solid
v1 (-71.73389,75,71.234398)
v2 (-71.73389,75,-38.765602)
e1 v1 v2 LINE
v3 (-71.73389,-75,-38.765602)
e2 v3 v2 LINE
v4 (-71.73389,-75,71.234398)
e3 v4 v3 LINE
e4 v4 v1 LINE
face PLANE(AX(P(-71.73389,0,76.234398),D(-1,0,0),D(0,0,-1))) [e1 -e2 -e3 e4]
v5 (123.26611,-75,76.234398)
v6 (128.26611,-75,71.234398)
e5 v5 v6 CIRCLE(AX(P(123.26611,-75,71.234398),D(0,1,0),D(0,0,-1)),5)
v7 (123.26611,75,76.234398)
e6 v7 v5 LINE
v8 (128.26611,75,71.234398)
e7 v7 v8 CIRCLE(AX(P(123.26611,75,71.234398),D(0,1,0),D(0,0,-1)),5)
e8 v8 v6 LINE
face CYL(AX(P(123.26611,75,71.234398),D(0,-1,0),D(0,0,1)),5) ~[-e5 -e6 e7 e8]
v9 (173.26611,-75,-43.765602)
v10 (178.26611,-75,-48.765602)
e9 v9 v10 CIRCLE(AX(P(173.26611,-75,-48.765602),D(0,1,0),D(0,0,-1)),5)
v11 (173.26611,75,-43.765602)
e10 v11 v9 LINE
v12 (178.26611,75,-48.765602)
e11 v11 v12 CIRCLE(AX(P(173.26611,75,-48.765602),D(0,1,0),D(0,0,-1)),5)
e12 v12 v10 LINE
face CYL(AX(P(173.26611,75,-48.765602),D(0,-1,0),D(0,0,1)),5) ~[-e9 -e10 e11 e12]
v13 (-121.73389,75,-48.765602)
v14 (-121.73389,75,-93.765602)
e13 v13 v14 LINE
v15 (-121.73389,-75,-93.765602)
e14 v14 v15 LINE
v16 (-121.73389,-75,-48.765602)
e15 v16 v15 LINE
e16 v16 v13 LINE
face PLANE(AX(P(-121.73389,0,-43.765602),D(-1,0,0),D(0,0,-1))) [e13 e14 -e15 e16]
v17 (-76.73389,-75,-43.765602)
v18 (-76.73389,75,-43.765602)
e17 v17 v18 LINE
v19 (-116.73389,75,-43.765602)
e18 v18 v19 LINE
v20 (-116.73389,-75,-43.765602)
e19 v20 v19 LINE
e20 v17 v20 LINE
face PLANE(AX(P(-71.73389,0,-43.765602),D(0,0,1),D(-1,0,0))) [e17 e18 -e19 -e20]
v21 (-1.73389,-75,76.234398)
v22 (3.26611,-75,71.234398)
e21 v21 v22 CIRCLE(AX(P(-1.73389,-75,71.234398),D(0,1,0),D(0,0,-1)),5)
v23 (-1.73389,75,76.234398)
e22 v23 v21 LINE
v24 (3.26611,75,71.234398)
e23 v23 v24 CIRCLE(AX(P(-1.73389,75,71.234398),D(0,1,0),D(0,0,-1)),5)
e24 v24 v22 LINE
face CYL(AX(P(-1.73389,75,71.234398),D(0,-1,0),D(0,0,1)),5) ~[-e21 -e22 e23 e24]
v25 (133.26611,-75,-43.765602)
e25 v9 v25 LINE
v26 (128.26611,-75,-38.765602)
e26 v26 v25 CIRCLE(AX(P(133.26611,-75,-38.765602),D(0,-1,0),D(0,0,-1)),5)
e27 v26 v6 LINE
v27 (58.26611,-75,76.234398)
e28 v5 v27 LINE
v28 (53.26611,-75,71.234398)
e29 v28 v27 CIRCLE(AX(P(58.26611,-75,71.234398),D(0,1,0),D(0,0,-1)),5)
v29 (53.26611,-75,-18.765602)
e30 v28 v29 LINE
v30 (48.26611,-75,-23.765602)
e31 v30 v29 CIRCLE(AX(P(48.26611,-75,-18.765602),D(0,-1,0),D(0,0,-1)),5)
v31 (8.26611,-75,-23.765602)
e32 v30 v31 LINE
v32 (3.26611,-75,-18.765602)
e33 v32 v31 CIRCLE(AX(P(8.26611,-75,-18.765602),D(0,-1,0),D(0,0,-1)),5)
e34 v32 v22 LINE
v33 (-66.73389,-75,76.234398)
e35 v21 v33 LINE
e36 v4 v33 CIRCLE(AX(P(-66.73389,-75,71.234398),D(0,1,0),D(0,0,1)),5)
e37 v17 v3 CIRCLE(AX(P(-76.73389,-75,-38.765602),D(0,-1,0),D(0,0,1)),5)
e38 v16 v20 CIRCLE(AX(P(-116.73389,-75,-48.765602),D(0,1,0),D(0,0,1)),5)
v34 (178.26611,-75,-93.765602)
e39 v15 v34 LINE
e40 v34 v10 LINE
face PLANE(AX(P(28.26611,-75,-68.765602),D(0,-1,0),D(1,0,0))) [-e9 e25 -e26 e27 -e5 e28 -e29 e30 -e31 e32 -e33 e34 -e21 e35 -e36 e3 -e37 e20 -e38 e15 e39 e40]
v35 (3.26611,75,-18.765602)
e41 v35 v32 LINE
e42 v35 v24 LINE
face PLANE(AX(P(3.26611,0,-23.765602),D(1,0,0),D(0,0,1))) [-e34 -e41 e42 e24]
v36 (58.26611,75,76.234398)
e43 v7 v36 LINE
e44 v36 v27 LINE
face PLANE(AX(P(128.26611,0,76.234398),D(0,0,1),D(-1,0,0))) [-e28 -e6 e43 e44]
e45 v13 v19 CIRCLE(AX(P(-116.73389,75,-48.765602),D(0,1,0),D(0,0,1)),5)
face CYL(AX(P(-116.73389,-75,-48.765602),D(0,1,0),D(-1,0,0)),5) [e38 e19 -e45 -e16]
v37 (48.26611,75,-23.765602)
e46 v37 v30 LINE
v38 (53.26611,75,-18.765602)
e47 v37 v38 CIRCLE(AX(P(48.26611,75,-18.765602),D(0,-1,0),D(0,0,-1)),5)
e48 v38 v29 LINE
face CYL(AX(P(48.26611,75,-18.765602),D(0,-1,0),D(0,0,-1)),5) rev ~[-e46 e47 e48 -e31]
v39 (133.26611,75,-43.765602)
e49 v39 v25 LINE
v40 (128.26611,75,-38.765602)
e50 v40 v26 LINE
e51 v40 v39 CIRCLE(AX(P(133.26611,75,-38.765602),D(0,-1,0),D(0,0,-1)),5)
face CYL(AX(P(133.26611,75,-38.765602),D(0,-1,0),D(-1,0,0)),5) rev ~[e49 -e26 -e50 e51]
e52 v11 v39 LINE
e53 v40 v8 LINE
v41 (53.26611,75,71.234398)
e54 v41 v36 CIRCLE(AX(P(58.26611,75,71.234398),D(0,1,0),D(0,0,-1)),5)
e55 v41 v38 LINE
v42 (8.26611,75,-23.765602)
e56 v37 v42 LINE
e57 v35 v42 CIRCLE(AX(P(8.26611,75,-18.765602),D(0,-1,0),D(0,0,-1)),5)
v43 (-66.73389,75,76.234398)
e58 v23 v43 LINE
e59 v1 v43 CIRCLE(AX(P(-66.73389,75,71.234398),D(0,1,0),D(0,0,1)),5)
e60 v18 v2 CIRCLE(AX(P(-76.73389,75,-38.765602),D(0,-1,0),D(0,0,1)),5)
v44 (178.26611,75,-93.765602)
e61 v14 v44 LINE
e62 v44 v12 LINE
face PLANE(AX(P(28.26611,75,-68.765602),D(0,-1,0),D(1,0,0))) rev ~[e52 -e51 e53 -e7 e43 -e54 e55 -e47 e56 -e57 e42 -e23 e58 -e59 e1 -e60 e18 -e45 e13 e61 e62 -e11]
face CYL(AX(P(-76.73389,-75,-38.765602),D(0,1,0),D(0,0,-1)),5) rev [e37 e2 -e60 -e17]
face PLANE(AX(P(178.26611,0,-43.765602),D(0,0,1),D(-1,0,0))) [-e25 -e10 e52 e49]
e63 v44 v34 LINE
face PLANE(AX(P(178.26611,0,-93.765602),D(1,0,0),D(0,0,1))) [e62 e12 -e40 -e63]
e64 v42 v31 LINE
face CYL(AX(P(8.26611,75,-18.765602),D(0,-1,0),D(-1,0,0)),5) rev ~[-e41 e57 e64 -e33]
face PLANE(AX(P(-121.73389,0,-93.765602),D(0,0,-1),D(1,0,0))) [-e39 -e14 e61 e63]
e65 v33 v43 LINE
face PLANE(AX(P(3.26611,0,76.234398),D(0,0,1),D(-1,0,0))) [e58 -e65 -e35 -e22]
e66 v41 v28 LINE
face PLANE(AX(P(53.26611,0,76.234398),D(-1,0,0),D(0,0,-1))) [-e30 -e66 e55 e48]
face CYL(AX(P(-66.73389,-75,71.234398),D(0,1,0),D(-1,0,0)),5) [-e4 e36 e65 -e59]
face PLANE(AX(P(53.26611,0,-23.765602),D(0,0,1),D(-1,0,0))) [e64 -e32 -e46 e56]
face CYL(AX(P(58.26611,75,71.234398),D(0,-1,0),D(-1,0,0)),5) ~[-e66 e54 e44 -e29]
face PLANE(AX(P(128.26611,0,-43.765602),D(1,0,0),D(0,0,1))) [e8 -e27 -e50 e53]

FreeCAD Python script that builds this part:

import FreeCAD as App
import Part
import Sketcher


def edges_at(feature, points):
    """Names of the edges that pass closest to the given points."""
    edges = feature.Shape.Edges
    near = lambda p: min(range(len(edges)), key=lambda i: edges[i].distToShape(Part.Vertex(*p))[0])
    return sorted({f"Edge{near(p) + 1}" for p in points})


def add_polygon(sketch, points):
    """Adds a closed chain of lines whose ends are joined by coincident constraints."""
    first, n = sketch.GeometryCount, len(points)
    for a, b in zip(points, points[1:] + points[:1]):
        sketch.addGeometry(Part.LineSegment(App.Vector(*a, 0), App.Vector(*b, 0)), False)
    for i in range(n):
        sketch.addConstraint(Sketcher.Constraint("Coincident", first + i, 2, first + (i + 1) % n, 1))

doc = App.newDocument("Part")
body = doc.addObject("PartDesign::Body", "Body")

sketch1 = body.newObject("Sketcher::SketchObject", "Sketch")
sketch1.AttachmentSupport = (doc.getObject("XZ_Plane"), [""])
sketch1.MapMode = "FlatFace"
add_polygon(sketch1, [(-122, -44), (-122, -94), (178, -94), (178, -44), (128, -44), (128, 76), (53, 76), (53, -24), (3, -24), (3, 76), (-72, 76), (-72, -44)])
sketch1.addConstraint([
    Sketcher.Constraint("Vertical", 0),
    Sketcher.Constraint("Horizontal", 1),
    Sketcher.Constraint("Vertical", 2),
    Sketcher.Constraint("Horizontal", 3),
    Sketcher.Constraint("Vertical", 4),
    Sketcher.Constraint("Horizontal", 5),
    Sketcher.Constraint("Vertical", 6),
    Sketcher.Constraint("Horizontal", 7),
    Sketcher.Constraint("Vertical", 8),
    Sketcher.Constraint("Horizontal", 9),
    Sketcher.Constraint("Vertical", 10),
    Sketcher.Constraint("Horizontal", 11),
    Sketcher.Constraint("Horizontal", 5, 2, 8, 2),
    Sketcher.Constraint("Horizontal", 3, 2, 10, 2),
    Sketcher.Constraint("Equal", 3, 7),
    Sketcher.Constraint("Equal", 5, 9),
    Sketcher.Constraint("Equal", 7, 11),
    Sketcher.Constraint("Equal", 11, 0),
    Sketcher.Constraint("DistanceX", 1, 1, 1, 2, 300.0),
    Sketcher.Constraint("DistanceX", 3, 2, 3, 1, 50.0),
    Sketcher.Constraint("DistanceY", 4, 1, 4, 2, 120.0),
    Sketcher.Constraint("DistanceY", 6, 2, 6, 1, 100.0),
    Sketcher.Constraint("DistanceY", 0, 2, -1, 1, 93.765602),
    Sketcher.Constraint("DistanceX", 0, 2, -1, 1, 121.73389),
])
pad1 = body.newObject("PartDesign::Pad", "Pad")
pad1.Profile = sketch1
pad1.Length = 150
pad1.Midplane = True
doc.recompute()

fillet = body.newObject("PartDesign::Fillet", "Fillet")
fillet.Base = (pad1, edges_at(pad1, [
    (53.266, 0, 76.234),
    (3.266, 0, 76.234),
    (128.266, 0, 76.234),
    (-71.734, 0, 76.234),
    (-71.734, 0, -43.766),
    (-121.734, 0, -43.766),
    (128.266, 0, -43.766),
    (178.266, 0, -43.766),
    (3.266, 0, -23.766),
    (53.266, 0, -23.766),
]))
fillet.Radius = 5

doc.recompute()
